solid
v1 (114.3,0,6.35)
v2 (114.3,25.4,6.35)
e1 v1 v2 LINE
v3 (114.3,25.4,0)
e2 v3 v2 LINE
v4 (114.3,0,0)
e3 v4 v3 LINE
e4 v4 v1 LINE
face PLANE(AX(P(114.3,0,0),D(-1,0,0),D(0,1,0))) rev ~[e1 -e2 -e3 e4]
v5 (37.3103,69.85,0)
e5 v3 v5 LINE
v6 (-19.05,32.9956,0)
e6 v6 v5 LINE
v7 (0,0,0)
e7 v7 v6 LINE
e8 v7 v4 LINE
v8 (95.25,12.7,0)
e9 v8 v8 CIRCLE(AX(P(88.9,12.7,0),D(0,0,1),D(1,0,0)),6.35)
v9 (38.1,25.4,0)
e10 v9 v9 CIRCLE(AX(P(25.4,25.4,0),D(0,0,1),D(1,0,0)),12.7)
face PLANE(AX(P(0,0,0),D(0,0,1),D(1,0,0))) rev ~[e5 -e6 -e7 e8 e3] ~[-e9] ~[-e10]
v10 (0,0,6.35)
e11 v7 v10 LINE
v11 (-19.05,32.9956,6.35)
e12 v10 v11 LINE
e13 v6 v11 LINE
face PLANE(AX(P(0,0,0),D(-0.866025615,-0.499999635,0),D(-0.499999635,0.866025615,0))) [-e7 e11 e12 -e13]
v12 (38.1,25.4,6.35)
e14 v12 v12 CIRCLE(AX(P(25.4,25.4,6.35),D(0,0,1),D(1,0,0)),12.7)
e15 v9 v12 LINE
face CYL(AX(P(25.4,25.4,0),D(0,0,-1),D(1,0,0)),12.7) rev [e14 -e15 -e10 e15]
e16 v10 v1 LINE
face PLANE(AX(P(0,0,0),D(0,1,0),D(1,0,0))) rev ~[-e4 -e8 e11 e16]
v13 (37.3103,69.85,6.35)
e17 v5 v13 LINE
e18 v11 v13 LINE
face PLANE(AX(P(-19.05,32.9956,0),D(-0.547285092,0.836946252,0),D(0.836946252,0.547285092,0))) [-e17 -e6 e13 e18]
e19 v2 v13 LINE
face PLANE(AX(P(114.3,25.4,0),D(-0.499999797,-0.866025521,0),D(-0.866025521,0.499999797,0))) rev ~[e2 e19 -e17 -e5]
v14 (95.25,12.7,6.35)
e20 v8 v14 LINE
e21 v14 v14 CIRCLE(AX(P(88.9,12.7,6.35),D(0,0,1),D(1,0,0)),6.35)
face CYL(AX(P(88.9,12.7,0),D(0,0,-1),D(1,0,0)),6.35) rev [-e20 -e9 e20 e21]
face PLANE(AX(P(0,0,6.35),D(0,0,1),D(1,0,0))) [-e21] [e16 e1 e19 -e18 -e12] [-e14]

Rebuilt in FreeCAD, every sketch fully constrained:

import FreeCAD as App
import Part
import Sketcher

V = App.Vector
Q = App.Units.Quantity


def add_polygon(sketch, points):
    """Adds a closed chain of lines whose ends are joined by coincident constraints."""
    first, n = sketch.GeometryCount, len(points)
    for a, b in zip(points, points[1:] + points[:1]):
        sketch.addGeometry(Part.LineSegment(App.Vector(*a, 0), App.Vector(*b, 0)), False)
    for i in range(n):
        sketch.addConstraint(Sketcher.Constraint("Coincident", first + i, 2, first + (i + 1) % n, 1))

doc = App.newDocument("Part")
body = doc.addObject("PartDesign::Body", "Body")

sketch1 = body.newObject("Sketcher::SketchObject", "Sketch")
sketch1.AttachmentSupport = (doc.getObject("XY_Plane"), [""])
sketch1.MapMode = "FlatFace"
add_polygon(sketch1, [(0, 0), (114.3, 0), (114.3, 25.4), (37.3103, 69.85), (-19.05, 32.9956)])
sketch1.addGeometry(Part.Circle(V(25.4, 25.4, 0), V(0, 0, 1), 12.7), False)
sketch1.addGeometry(Part.Circle(V(88.9, 12.7, 0), V(0, 0, 1), 6.35), False)
sketch1.addConstraint([
    Sketcher.Constraint("Horizontal", 0),
    Sketcher.Constraint("Vertical", 1),
    Sketcher.Constraint("Coincident", 4, 2, -1, 1),
    Sketcher.Constraint("Horizontal", 5, 3, 1, 2),
    Sketcher.Constraint("Diameter", 5, Q("1 in")),
    Sketcher.Constraint("Diameter", 6, Q("0.5 in")),
    Sketcher.Constraint("DistanceY", 1, 1, 1, 2, Q("1 in")),
    Sketcher.Constraint("DistanceX", -1, 1, 5, 3, Q("1 in")),
    Sketcher.Constraint("DistanceX", 6, 3, 0, 2, Q("1 in")),
    Sketcher.Constraint("Distance", 2, Q("3.5 in")),
    Sketcher.Constraint("Distance", 4, Q("1.5 in")),
    Sketcher.Constraint("DistanceX", -1, 1, 6, 3, Q("3.5 in")),
    Sketcher.Constraint("DistanceY", -1, 1, 6, 3, Q("0.5 in")),
    Sketcher.Constraint("Angle", 2, Q("150 deg")),
    Sketcher.Constraint("Angle", 4, Q("-60 deg")),
])
pad1 = body.newObject("PartDesign::Pad", "Pad")
pad1.Profile = sketch1
pad1.Length = Q("0.25 in")

doc.recompute()
